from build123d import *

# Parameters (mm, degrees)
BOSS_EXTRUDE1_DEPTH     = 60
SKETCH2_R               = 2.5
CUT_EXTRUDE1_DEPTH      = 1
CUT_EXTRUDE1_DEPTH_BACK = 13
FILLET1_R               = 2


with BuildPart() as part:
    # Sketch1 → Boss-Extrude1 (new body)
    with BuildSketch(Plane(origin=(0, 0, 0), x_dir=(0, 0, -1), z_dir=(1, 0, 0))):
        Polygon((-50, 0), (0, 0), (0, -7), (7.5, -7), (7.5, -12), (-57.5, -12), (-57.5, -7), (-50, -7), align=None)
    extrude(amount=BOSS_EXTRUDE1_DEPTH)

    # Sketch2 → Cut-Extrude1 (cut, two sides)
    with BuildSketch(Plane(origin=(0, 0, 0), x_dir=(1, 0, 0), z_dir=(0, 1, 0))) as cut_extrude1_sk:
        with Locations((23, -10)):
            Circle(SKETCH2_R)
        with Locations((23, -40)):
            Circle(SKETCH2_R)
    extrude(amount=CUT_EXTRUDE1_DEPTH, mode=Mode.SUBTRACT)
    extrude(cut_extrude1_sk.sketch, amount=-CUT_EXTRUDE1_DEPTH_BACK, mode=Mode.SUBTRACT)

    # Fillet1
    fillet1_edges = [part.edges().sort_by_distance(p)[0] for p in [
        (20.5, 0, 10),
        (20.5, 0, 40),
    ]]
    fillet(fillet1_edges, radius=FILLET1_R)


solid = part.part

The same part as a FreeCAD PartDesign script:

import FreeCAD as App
import Part
import Sketcher

V = App.Vector
Q = App.Units.Quantity


def edges_at(feature, points):
    """Names of the edges that pass closest to the given points."""
    edges = feature.Shape.Edges
    near = lambda p: min(range(len(edges)), key=lambda i: edges[i].distToShape(Part.Vertex(*p))[0])
    return sorted({f"Edge{near(p) + 1}" for p in points})

doc = App.newDocument("Part")
body = doc.addObject("PartDesign::Body", "Body")

# Sketch on YZ plane
sketch1 = body.newObject("Sketcher::SketchObject", "Sketch")
sketch1.AttachmentSupport = (doc.getObject("YZ_Plane"), [""])
sketch1.MapMode = "FlatFace"
sketch1.addGeometry([
    Part.LineSegment(V(0, 0, 0), V(0, 50, 0)),  # 0
    Part.LineSegment(V(0, 50, 0), V(-7, 50, 0)),  # 1
    Part.LineSegment(V(-7, 50, 0), V(-7, 58, 0)),  # 2
    Part.LineSegment(V(-7, 58, 0), V(-12, 58, 0)),  # 3
    Part.LineSegment(V(-12, 58, 0), V(-12, -8, 0)),  # 4
    Part.LineSegment(V(-12, -8, 0), V(-7, -8, 0)),  # 5
    Part.LineSegment(V(-7, -8, 0), V(-7, 0, 0)),  # 6
    Part.LineSegment(V(-7, 0, 0), V(0, 0, 0)),  # 7
], False)
sketch1.addConstraint([
    Sketcher.Constraint("Coincident", 0, 2, 1, 1),
    Sketcher.Constraint("Coincident", 1, 2, 2, 1),
    Sketcher.Constraint("Coincident", 2, 2, 3, 1),
    Sketcher.Constraint("Coincident", 3, 2, 4, 1),
    Sketcher.Constraint("Coincident", 4, 2, 5, 1),
    Sketcher.Constraint("Coincident", 5, 2, 6, 1),
    Sketcher.Constraint("Coincident", 6, 2, 7, 1),
    Sketcher.Constraint("Coincident", 7, 2, 0, 1),
    Sketcher.Constraint("Vertical", 0),
    Sketcher.Constraint("Horizontal", 1),
    Sketcher.Constraint("Vertical", 2),
    Sketcher.Constraint("Horizontal", 3),
    Sketcher.Constraint("Vertical", 4),
    Sketcher.Constraint("Horizontal", 5),
    Sketcher.Constraint("Vertical", 6),
    Sketcher.Constraint("Horizontal", 7),
    Sketcher.Constraint("Coincident", 7, 2, -1, 1),
    Sketcher.Constraint("Vertical", 2, 2, 5, 2),
    Sketcher.Constraint("Equal", 2, 6),
    Sketcher.Constraint("DistanceX", 1, 2, 1, 1, Q("7 mm")),
    Sketcher.Constraint("DistanceX", 3, 2, 3, 1, Q("5 mm")),
    Sketcher.Constraint("DistanceY", 0, 1, 0, 2, Q("50 mm")),
    Sketcher.Constraint("DistanceY", 4, 2, 4, 1, Q("65 mm")),
])
pad1 = body.newObject("PartDesign::Pad", "Pad")
pad1.Profile = sketch1
pad1.Length = 60

# Sketch on XZ plane
sketch2 = body.newObject("Sketcher::SketchObject", "Sketch001")
sketch2.AttachmentSupport = (doc.getObject("XZ_Plane"), [""])
sketch2.MapMode = "FlatFace"
sketch2.addGeometry([
    Part.Circle(V(23, 10, 0), V(0, 0, 1), 2.5),
    Part.Circle(V(23, 40, 0), V(0, 0, 1), 2.5),
], False)
sketch2.addConstraint([
    Sketcher.Constraint("Equal", 0, 1),
    Sketcher.Constraint("Vertical", 0, 3, 1, 3),
    Sketcher.Constraint("Diameter", 0, Q("5 mm")),
    Sketcher.Constraint("DistanceX", -1, 1, 0, 3, Q("23 mm")),
    Sketcher.Constraint("DistanceY", -1, 1, 0, 3, Q("10 mm")),
    Sketcher.Constraint("DistanceY", -1, 1, 1, 3, Q("40 mm")),
])
pocket1 = body.newObject("PartDesign::Pocket", "Pocket")
pocket1.Profile = sketch2
pocket1.Type = "ThroughAll"
pocket1.Midplane = True
doc.recompute()

fillet = body.newObject("PartDesign::Fillet", "Fillet")
fillet.Base = (pocket1, edges_at(pocket1, [(20.5, 0, 10), (20.5, 0, 40)]))
fillet.Radius = 2

doc.recompute()
